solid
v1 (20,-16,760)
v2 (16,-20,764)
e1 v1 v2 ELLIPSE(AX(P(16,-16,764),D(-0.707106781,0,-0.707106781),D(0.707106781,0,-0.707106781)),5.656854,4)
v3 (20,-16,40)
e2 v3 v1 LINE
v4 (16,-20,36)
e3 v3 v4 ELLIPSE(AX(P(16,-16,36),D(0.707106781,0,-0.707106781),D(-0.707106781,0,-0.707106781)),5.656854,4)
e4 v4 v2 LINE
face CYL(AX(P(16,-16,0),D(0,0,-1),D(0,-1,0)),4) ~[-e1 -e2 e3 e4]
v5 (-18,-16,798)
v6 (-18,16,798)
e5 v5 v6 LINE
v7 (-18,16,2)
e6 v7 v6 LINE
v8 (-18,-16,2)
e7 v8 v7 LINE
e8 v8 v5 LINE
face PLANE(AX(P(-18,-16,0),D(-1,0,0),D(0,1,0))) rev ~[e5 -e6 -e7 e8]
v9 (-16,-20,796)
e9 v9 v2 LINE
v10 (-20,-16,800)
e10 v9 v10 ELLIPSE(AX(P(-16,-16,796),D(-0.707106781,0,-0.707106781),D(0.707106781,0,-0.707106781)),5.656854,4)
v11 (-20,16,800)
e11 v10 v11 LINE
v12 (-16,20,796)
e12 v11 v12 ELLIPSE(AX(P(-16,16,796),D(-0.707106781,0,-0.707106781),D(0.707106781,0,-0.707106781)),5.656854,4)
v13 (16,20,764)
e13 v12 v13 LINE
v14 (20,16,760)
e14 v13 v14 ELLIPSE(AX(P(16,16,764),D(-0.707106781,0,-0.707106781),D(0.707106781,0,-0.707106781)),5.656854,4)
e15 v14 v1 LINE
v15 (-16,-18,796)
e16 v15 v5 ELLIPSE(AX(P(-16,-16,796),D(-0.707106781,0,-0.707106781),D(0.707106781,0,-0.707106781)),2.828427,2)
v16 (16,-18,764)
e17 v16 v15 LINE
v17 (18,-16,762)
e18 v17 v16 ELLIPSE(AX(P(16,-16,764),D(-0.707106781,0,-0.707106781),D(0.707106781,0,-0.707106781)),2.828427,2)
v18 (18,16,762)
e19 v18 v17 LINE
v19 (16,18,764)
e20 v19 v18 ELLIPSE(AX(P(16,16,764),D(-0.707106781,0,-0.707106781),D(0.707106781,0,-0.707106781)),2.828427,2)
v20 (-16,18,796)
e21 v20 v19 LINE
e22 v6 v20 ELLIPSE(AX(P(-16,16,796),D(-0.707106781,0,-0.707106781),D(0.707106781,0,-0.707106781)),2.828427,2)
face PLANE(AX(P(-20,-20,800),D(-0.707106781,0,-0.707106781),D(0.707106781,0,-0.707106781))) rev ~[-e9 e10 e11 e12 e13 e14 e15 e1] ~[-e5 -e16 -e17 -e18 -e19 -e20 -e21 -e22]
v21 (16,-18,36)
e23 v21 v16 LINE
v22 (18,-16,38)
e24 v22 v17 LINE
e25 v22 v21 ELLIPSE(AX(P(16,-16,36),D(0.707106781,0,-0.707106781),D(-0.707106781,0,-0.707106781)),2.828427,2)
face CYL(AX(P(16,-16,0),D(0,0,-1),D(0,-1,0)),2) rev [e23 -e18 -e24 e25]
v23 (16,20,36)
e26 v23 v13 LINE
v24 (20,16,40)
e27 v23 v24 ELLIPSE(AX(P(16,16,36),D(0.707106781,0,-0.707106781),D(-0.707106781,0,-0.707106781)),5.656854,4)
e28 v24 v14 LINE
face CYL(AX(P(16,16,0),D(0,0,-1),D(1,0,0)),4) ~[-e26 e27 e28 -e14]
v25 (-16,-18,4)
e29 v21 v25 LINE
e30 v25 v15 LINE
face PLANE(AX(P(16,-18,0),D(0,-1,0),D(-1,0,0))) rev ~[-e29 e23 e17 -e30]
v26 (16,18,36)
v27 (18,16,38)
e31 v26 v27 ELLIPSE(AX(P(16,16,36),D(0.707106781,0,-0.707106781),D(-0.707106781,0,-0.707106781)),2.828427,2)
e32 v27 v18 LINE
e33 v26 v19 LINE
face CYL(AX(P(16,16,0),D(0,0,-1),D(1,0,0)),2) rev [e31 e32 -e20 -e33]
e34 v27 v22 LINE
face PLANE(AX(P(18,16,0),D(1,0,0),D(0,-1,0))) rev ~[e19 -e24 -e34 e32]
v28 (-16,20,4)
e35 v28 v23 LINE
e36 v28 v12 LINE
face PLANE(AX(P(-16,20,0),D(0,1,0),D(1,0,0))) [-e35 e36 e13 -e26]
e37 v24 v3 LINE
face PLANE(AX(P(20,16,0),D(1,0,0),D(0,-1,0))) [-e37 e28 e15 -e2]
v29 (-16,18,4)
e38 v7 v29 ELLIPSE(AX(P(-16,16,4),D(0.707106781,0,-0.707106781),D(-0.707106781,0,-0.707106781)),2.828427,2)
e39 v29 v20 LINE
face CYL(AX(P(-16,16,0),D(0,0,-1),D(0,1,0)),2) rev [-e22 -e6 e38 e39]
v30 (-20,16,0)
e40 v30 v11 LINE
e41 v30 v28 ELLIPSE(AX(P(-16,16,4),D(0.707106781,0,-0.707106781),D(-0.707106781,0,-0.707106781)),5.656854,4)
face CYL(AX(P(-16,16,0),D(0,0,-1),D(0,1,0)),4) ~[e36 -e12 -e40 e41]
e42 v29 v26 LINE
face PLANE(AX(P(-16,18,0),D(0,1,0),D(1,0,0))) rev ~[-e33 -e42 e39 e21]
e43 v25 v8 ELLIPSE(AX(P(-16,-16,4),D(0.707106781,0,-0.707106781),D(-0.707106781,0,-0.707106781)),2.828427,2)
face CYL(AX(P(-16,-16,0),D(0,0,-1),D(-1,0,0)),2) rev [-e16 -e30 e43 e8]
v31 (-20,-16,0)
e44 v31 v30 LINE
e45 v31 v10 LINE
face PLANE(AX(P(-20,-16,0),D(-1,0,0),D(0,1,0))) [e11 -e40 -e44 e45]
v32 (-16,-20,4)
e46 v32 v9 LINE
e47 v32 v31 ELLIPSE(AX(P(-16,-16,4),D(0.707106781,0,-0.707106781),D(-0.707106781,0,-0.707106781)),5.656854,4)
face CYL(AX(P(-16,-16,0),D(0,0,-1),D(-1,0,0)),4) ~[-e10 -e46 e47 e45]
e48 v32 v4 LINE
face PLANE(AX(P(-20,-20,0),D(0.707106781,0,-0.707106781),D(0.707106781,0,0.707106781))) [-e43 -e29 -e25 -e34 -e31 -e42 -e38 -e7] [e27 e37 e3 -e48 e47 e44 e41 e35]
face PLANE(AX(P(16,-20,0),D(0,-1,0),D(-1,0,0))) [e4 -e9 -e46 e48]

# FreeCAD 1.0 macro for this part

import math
import FreeCAD as App
import Part
import Sketcher
Q = App.Units.Quantity

doc = App.newDocument("Part")
params = doc.addObject("Spreadsheet::Sheet", "Params")
for row, (alias, value) in enumerate([
    ("sketch1_radius", "4 mm"),
    ("sketch1_radius2", "2 mm"),
    ("pad1_length", "800 mm"),
    ("pocket1_length", "40 mm"),
], start=1):
    params.set(f"A{row}", alias)
    params.set(f"B{row}", "=" + value)
    params.setAlias(f"B{row}", alias)

body = doc.addObject("PartDesign::Body", "Body")

# Sketch on XY plane
sketch1 = body.newObject("Sketcher::SketchObject", "Sketch")
sketch1.AttachmentSupport = (doc.getObject("XY_Plane"), [""])
sketch1.MapMode = "FlatFace"
sketch1.addGeometry(Part.LineSegment(App.Vector(-20, 16, 0), App.Vector(-20, -16, 0)), False)
sketch1.addGeometry(Part.ArcOfCircle(Part.Circle(App.Vector(-16, -16, 0), App.Vector(0, 0, 1), 4), math.radians(180), math.radians(270)), False)
sketch1.addGeometry(Part.LineSegment(App.Vector(-16, -20, 0), App.Vector(16, -20, 0)), False)
sketch1.addGeometry(Part.ArcOfCircle(Part.Circle(App.Vector(16, -16, 0), App.Vector(0, 0, 1), 4), math.radians(-90), math.radians(0)), False)
sketch1.addGeometry(Part.LineSegment(App.Vector(20, -16, 0), App.Vector(20, 16, 0)), False)
sketch1.addGeometry(Part.ArcOfCircle(Part.Circle(App.Vector(16, 16, 0), App.Vector(0, 0, 1), 4), math.radians(0), math.radians(90)), False)
sketch1.addGeometry(Part.LineSegment(App.Vector(16, 20, 0), App.Vector(-16, 20, 0)), False)
sketch1.addGeometry(Part.ArcOfCircle(Part.Circle(App.Vector(-16, 16, 0), App.Vector(0, 0, 1), 4), math.radians(90), math.radians(180)), False)
sketch1.addGeometry(Part.ArcOfCircle(Part.Circle(App.Vector(-16, 16, 0), App.Vector(0, 0, 1), 2), math.radians(90), math.radians(180)), False)
sketch1.addGeometry(Part.LineSegment(App.Vector(-16, 18, 0), App.Vector(16, 18, 0)), False)
sketch1.addGeometry(Part.ArcOfCircle(Part.Circle(App.Vector(16, 16, 0), App.Vector(0, 0, 1), 2), math.radians(0), math.radians(90)), False)
sketch1.addGeometry(Part.LineSegment(App.Vector(18, 16, 0), App.Vector(18, -16, 0)), False)
sketch1.addGeometry(Part.ArcOfCircle(Part.Circle(App.Vector(16, -16, 0), App.Vector(0, 0, 1), 2), math.radians(-90), math.radians(0)), False)
sketch1.addGeometry(Part.LineSegment(App.Vector(16, -18, 0), App.Vector(-16, -18, 0)), False)
sketch1.addGeometry(Part.ArcOfCircle(Part.Circle(App.Vector(-16, -16, 0), App.Vector(0, 0, 1), 2), math.radians(180), math.radians(270)), False)
sketch1.addGeometry(Part.LineSegment(App.Vector(-18, -16, 0), App.Vector(-18, 16, 0)), False)
sketch1.addConstraint(Sketcher.Constraint("Tangent", 0, 2, 1, 1))
sketch1.addConstraint(Sketcher.Constraint("Tangent", 1, 2, 2, 1))
sketch1.addConstraint(Sketcher.Constraint("Tangent", 2, 2, 3, 1))
sketch1.addConstraint(Sketcher.Constraint("Tangent", 3, 2, 4, 1))
sketch1.addConstraint(Sketcher.Constraint("Tangent", 4, 2, 5, 1))
sketch1.addConstraint(Sketcher.Constraint("Tangent", 5, 2, 6, 1))
sketch1.addConstraint(Sketcher.Constraint("Tangent", 6, 2, 7, 1))
sketch1.addConstraint(Sketcher.Constraint("Tangent", 7, 2, 0, 1))
sketch1.addConstraint(Sketcher.Constraint("Tangent", 8, 1, 9, 1))
sketch1.addConstraint(Sketcher.Constraint("Tangent", 9, 2, 10, 2))
sketch1.addConstraint(Sketcher.Constraint("Tangent", 10, 1, 11, 1))
sketch1.addConstraint(Sketcher.Constraint("Tangent", 11, 2, 12, 2))
sketch1.addConstraint(Sketcher.Constraint("Tangent", 12, 1, 13, 1))
sketch1.addConstraint(Sketcher.Constraint("Tangent", 13, 2, 14, 2))
sketch1.addConstraint(Sketcher.Constraint("Tangent", 14, 1, 15, 1))
sketch1.addConstraint(Sketcher.Constraint("Tangent", 15, 2, 8, 2))
sketch1.addConstraint(Sketcher.Constraint("Vertical", 0))
sketch1.addConstraint(Sketcher.Constraint("Horizontal", 2))
sketch1.addConstraint(Sketcher.Constraint("Vertical", 4))
sketch1.addConstraint(Sketcher.Constraint("Horizontal", 6))
sketch1.addConstraint(Sketcher.Constraint("Horizontal", 9))
sketch1.addConstraint(Sketcher.Constraint("Vertical", 11))
sketch1.addConstraint(Sketcher.Constraint("Horizontal", 13))
sketch1.addConstraint(Sketcher.Constraint("Vertical", 15))
sketch1.addConstraint(Sketcher.Constraint("Coincident", 8, 3, 7, 3))
sketch1.addConstraint(Sketcher.Constraint("Coincident", 10, 3, 5, 3))
sketch1.addConstraint(Sketcher.Constraint("Coincident", 12, 3, 3, 3))
sketch1.addConstraint(Sketcher.Constraint("Equal", 1, 3))
sketch1.addConstraint(Sketcher.Constraint("Equal", 3, 5))
sketch1.addConstraint(Sketcher.Constraint("Equal", 5, 7))
sketch1.addConstraint(Sketcher.Constraint("Equal", 12, 14))
sketch1.addConstraint(Sketcher.Constraint("Symmetric", 1, 3, 5, 3, -1, 1))
sketch1.addConstraint(Sketcher.Constraint("Equal", 13, 0))
sketch1.addConstraint(Sketcher.Constraint("Radius", 1, 4.0))
sketch1.addConstraint(Sketcher.Constraint("Radius", 8, 2.0))
sketch1.addConstraint(Sketcher.Constraint("DistanceX", 0, 2, -1, 1, 20.0))
sketch1.setExpression("Constraints[33]", "Params.sketch1_radius")
sketch1.setExpression("Constraints[34]", "Params.sketch1_radius2")
pad1 = body.newObject("PartDesign::Pad", "Pad")
pad1.Profile = sketch1
pad1.setExpression("Length", "Params.pad1_length")

# Sketch on XZ plane
sketch2 = body.newObject("Sketcher::SketchObject", "Sketch001")
sketch2.AttachmentSupport = (doc.getObject("XZ_Plane"), [""])
sketch2.MapMode = "FlatFace"
sketch2.AttachmentOffset = App.Placement(App.Vector(0, 0, 20), App.Rotation())
sketch2.addGeometry(Part.LineSegment(App.Vector(31, 834, 0), App.Vector(-20, 800, 0)), False)
sketch2.addGeometry(Part.LineSegment(App.Vector(-20, 800, 0), App.Vector(31, 749, 0)), False)
sketch2.addGeometry(Part.LineSegment(App.Vector(31, 749, 0), App.Vector(31, 834, 0)), False)
sketch2.addGeometry(Part.LineSegment(App.Vector(40, 60, 0), App.Vector(-20, 0, 0)), False)
sketch2.addGeometry(Part.LineSegment(App.Vector(-20, 0, 0), App.Vector(40, -51, 0)), False)
sketch2.addGeometry(Part.LineSegment(App.Vector(40, -51, 0), App.Vector(40, 60, 0)), False)
sketch2.addConstraint(Sketcher.Constraint("Coincident", 0, 2, 1, 1))
sketch2.addConstraint(Sketcher.Constraint("Coincident", 1, 2, 2, 1))
sketch2.addConstraint(Sketcher.Constraint("Coincident", 2, 2, 0, 1))
sketch2.addConstraint(Sketcher.Constraint("Coincident", 3, 2, 4, 1))
sketch2.addConstraint(Sketcher.Constraint("Coincident", 4, 2, 5, 1))
sketch2.addConstraint(Sketcher.Constraint("Coincident", 5, 2, 3, 1))
sketch2.addConstraint(Sketcher.Constraint("Vertical", 2))
sketch2.addConstraint(Sketcher.Constraint("Vertical", 5))
sketch2.addConstraint(Sketcher.Constraint("PointOnObject", 3, 2, -1))
sketch2.addConstraint(Sketcher.Constraint("Perpendicular", 1, 3))
sketch2.addConstraint(Sketcher.Constraint("Vertical", 0, 2, 3, 2))
sketch2.addConstraint(Sketcher.Constraint("Angle", 1, Q("-45 deg")))
sketch2.addConstraint(Sketcher.Constraint("DistanceX", 0, 2, -1, 1, 20.0))
sketch2.addConstraint(Sketcher.Constraint("DistanceY", -1, 1, 0, 2, 800.0))
sketch2.addConstraint(Sketcher.Constraint("Angle", 0, Q("-146.2296 deg")))
sketch2.addConstraint(Sketcher.Constraint("Angle", 4, Q("-40.4507 deg")))
sketch2.addConstraint(Sketcher.Constraint("DistanceY", 2, 1, 2, 2, 84.5637))
sketch2.addConstraint(Sketcher.Constraint("DistanceY", 5, 1, 5, 2, 110.8208))
pocket1 = body.newObject("PartDesign::Pocket", "Pocket")
pocket1.Profile = sketch2
pocket1.setExpression("Length", "Params.pocket1_length")

doc.recompute()
